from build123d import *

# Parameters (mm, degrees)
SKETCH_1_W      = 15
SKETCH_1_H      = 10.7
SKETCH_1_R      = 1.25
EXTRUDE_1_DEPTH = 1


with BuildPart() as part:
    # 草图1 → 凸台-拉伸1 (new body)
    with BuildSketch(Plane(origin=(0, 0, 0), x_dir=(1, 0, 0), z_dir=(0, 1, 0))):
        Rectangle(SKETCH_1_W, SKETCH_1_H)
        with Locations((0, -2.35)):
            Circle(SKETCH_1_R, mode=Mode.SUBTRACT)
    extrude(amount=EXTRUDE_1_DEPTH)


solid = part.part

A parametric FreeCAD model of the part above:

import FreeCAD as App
import Part
import Sketcher
from FreeCAD import Vector
Q = App.Units.Quantity

doc = App.newDocument("Part")
body = doc.addObject("PartDesign::Body", "Body")

sketch1 = doc.addObject("Sketcher::SketchObject", "Sketch")
body.addObject(sketch1)
sketch1.AttachmentSupport = (doc.XZ_Plane, [""])
sketch1.MapMode = "FlatFace"
sketch1.addGeometry([
    Part.LineSegment(Vector(-7.5, -5.3, 0), Vector(-7.5, 5.3, 0)),
    Part.LineSegment(Vector(-7.5, 5.3, 0), Vector(7.5, 5.3, 0)),
    Part.LineSegment(Vector(7.5, 5.3, 0), Vector(7.5, -5.3, 0)),
    Part.LineSegment(Vector(7.5, -5.3, 0), Vector(-7.5, -5.3, 0)),
    Part.Circle(Vector(0, 2.4, 0), Vector(0, 0, 1), 1.2),
], False)
sketch1.addConstraint([
    Sketcher.Constraint("Coincident", 0, 2, 1, 1),
    Sketcher.Constraint("Coincident", 1, 2, 2, 1),
    Sketcher.Constraint("Coincident", 2, 2, 3, 1),
    Sketcher.Constraint("Coincident", 3, 2, 0, 1),
    Sketcher.Constraint("Vertical", 0),
    Sketcher.Constraint("Horizontal", 1),
    Sketcher.Constraint("Vertical", 2),
    Sketcher.Constraint("Horizontal", 3),
    Sketcher.Constraint("Symmetric", 0, 2, 2, 2, -1, 1),
    Sketcher.Constraint("PointOnObject", 4, 3, -2),
    Sketcher.Constraint("Diameter", 4, Q("2.5 mm")),
    Sketcher.Constraint("DistanceX", 1, 1, 1, 2, Q("15 mm")),
    Sketcher.Constraint("DistanceY", 0, 1, 0, 2, Q("10.7 mm")),
    Sketcher.Constraint("DistanceY", 4, 3, 0, 2, Q("3 mm")),
])
pad1 = doc.addObject("PartDesign::Pad", "Pad")
body.addObject(pad1)
pad1.Profile = sketch1
pad1.Length = 1
pad1.Reversed = True

doc.recompute()
